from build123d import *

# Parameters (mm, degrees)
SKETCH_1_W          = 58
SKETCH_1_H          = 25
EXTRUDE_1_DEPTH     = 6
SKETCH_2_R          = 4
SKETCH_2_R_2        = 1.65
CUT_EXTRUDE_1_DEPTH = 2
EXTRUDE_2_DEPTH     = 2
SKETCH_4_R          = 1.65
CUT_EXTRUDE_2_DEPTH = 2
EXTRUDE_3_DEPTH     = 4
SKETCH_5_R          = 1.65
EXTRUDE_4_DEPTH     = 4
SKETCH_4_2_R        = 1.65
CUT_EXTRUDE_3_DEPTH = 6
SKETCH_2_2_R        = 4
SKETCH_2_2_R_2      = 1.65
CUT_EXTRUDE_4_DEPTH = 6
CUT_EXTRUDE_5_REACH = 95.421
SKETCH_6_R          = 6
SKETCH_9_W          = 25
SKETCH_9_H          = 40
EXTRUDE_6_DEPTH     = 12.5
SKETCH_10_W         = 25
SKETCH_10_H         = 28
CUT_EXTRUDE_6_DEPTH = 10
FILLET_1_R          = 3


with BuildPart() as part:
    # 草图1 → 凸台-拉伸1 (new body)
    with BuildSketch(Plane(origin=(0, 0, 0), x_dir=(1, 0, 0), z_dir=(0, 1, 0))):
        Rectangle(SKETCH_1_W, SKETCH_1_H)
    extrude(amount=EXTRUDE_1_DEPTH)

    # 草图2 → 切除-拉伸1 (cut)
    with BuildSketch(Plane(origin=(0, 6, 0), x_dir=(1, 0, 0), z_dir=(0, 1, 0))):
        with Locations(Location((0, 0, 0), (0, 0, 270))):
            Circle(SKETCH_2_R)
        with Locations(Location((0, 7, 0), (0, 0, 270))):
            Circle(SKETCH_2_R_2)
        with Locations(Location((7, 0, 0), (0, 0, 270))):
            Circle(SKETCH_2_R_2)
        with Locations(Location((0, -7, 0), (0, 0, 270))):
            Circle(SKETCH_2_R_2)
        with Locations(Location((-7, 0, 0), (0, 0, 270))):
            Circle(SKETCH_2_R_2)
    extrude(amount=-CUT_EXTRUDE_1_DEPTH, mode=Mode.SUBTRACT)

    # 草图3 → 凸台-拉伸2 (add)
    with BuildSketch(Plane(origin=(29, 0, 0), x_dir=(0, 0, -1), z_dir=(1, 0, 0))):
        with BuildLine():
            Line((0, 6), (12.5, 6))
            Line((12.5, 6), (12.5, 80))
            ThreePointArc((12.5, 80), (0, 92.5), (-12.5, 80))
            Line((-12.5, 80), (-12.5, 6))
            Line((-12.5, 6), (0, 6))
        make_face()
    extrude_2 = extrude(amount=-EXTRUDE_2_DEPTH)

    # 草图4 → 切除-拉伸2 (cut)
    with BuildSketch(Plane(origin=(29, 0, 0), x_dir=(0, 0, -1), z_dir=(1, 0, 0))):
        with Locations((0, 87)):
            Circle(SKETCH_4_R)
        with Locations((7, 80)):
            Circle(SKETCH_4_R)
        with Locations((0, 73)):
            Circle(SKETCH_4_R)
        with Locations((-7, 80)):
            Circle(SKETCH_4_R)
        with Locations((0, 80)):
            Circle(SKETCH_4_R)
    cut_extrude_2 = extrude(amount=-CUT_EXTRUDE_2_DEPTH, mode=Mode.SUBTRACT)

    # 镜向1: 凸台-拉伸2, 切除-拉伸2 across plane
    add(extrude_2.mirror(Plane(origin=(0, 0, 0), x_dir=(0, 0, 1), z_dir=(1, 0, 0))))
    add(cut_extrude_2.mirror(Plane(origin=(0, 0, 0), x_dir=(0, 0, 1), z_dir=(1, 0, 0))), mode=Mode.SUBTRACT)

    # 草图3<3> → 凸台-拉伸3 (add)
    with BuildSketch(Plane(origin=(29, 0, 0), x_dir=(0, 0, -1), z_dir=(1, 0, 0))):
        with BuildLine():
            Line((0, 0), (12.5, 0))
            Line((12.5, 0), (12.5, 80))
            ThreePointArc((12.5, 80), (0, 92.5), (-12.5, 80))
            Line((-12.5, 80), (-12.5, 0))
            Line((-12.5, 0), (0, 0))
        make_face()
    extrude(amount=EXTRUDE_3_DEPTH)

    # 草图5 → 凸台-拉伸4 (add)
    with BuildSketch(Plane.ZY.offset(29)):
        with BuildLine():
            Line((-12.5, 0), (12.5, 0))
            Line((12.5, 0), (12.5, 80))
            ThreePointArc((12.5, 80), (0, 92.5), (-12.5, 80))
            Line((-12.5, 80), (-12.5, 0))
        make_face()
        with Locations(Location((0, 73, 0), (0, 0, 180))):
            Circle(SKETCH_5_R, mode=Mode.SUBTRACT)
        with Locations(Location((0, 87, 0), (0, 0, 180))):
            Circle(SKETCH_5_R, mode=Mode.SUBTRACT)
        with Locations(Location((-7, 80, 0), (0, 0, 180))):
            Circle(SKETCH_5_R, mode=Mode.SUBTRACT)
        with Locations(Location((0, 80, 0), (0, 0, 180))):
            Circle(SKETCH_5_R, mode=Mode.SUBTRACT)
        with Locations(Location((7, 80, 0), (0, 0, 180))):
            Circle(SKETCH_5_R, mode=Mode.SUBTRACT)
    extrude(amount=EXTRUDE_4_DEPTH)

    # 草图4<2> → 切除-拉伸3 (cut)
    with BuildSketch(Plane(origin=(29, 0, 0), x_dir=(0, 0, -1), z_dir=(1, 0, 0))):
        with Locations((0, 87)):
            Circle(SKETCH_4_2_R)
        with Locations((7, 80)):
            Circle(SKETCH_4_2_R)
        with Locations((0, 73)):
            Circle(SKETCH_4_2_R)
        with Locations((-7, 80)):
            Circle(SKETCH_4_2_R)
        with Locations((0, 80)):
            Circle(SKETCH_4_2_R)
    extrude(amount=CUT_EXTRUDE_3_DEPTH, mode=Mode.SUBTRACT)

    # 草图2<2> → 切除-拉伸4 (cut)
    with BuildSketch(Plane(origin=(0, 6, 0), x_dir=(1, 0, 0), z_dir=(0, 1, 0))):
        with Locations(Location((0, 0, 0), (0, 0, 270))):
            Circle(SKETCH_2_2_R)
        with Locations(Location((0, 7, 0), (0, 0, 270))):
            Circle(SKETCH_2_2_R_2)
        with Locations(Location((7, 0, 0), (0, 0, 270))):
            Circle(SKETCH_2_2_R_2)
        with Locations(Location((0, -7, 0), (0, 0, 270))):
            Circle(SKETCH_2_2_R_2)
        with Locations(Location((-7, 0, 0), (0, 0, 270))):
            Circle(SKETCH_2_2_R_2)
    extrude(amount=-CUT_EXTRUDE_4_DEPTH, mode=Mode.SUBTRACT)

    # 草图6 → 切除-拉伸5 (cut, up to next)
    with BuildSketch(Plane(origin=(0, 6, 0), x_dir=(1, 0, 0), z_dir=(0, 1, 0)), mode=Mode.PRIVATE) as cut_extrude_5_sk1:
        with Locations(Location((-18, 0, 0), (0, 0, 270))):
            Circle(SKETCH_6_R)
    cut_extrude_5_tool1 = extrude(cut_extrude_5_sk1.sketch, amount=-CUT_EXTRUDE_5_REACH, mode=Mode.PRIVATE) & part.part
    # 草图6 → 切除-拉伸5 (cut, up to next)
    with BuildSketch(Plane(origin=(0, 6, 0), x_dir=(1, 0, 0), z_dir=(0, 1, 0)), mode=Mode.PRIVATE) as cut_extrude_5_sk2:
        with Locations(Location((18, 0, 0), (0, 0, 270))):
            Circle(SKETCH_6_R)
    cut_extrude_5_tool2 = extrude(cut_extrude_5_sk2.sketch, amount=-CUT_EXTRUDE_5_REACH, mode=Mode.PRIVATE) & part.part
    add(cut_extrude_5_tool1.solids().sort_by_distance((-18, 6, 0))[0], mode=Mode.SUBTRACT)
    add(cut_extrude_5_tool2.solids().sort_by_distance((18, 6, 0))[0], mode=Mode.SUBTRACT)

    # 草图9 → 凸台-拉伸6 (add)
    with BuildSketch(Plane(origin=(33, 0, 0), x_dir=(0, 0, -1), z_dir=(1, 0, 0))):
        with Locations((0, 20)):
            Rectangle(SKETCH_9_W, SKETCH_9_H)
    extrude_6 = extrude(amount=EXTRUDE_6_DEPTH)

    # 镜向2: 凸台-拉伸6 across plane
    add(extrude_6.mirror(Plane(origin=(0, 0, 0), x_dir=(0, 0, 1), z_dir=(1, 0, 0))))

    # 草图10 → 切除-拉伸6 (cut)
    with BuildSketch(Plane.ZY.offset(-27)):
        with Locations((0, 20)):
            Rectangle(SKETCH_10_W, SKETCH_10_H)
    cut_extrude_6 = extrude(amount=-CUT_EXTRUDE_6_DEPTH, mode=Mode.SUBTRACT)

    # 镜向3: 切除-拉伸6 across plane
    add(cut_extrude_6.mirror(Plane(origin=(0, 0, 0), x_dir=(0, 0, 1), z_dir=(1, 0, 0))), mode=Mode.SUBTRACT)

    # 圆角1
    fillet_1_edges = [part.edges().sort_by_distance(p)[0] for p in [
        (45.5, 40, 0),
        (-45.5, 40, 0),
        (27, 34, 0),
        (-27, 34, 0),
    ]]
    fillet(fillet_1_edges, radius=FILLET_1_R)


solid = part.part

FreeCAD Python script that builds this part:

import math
import FreeCAD as App
import Part
import Sketcher

V = App.Vector
Q = App.Units.Quantity


def edges_at(feature, points):
    """Names of the edges that pass closest to the given points."""
    edges = feature.Shape.Edges
    near = lambda p: min(range(len(edges)), key=lambda i: edges[i].distToShape(Part.Vertex(*p))[0])
    return sorted({f"Edge{near(p) + 1}" for p in points})


def add_polygon(sketch, points):
    """Adds a closed chain of lines whose ends are joined by coincident constraints."""
    first, n = sketch.GeometryCount, len(points)
    for a, b in zip(points, points[1:] + points[:1]):
        sketch.addGeometry(Part.LineSegment(App.Vector(*a, 0), App.Vector(*b, 0)), False)
    for i in range(n):
        sketch.addConstraint(Sketcher.Constraint("Coincident", first + i, 2, first + (i + 1) % n, 1))

doc = App.newDocument("Part")
body = doc.addObject("PartDesign::Body", "Body")

sketch1 = doc.addObject("Sketcher::SketchObject", "Sketch")
body.addObject(sketch1)
sketch1.AttachmentSupport = (doc.XZ_Plane, [""])
sketch1.MapMode = "FlatFace"
add_polygon(sketch1, [(-29, -12.5), (-29, 12.5), (29, 12.5), (29, -12.5)])
sketch1.addConstraint(Sketcher.Constraint("Vertical", 0))
sketch1.addConstraint(Sketcher.Constraint("Horizontal", 1))
sketch1.addConstraint(Sketcher.Constraint("Vertical", 2))
sketch1.addConstraint(Sketcher.Constraint("Horizontal", 3))
sketch1.addConstraint(Sketcher.Constraint("Symmetric", 0, 2, 2, 2, -1, 1))
sketch1.addConstraint(Sketcher.Constraint("DistanceX", 1, 1, 1, 2, Q("58 mm")))
sketch1.addConstraint(Sketcher.Constraint("DistanceY", 0, 1, 0, 2, Q("25 mm")))
pad1 = doc.addObject("PartDesign::Pad", "Pad")
body.addObject(pad1)
pad1.Profile = sketch1
pad1.Length = 6
pad1.Reversed = True

sketch2 = doc.addObject("Sketcher::SketchObject", "Sketch001")
body.addObject(sketch2)
sketch2.AttachmentSupport = (doc.XZ_Plane, [""])
sketch2.MapMode = "FlatFace"
sketch2.AttachmentOffset = App.Placement(V(0, 0, -6), App.Rotation())
sketch2.addGeometry(Part.Circle(V(0, 0, 0), V(0, 0, 1), 4), False)
sketch2.addGeometry(Part.Circle(V(0, -7, 0), V(0, 0, 1), 1.65), False)
sketch2.addGeometry(Part.Circle(V(7, 0, 0), V(0, 0, 1), 1.65), False)
sketch2.addGeometry(Part.Circle(V(0, 7, 0), V(0, 0, 1), 1.65), False)
sketch2.addGeometry(Part.Circle(V(-7, 0, 0), V(0, 0, 1), 1.65), False)
sketch2.addConstraint(Sketcher.Constraint("Coincident", 0, 3, -1, 1))
sketch2.addConstraint(Sketcher.Constraint("Equal", 1, 2))
sketch2.addConstraint(Sketcher.Constraint("Equal", 2, 3))
sketch2.addConstraint(Sketcher.Constraint("Equal", 3, 4))
sketch2.addConstraint(Sketcher.Constraint("Symmetric", 1, 3, 3, 3, -1, 1))
sketch2.addConstraint(Sketcher.Constraint("Symmetric", 2, 3, 4, 3, -1, 1))
sketch2.addConstraint(Sketcher.Constraint("PointOnObject", 1, 3, -2))
sketch2.addConstraint(Sketcher.Constraint("PointOnObject", 2, 3, -1))
sketch2.addConstraint(Sketcher.Constraint("Diameter", 0, Q("8 mm")))
sketch2.addConstraint(Sketcher.Constraint("Diameter", 1, Q("3.3 mm")))
sketch2.addConstraint(Sketcher.Constraint("DistanceY", 1, 3, -1, 1, Q("7 mm")))
sketch2.addConstraint(Sketcher.Constraint("DistanceX", -1, 1, 2, 3, Q("7 mm")))
pocket1 = doc.addObject("PartDesign::Pocket", "Pocket")
body.addObject(pocket1)
pocket1.Profile = sketch2
pocket1.Length = 2
pocket1.Reversed = True

sketch3 = doc.addObject("Sketcher::SketchObject", "Sketch002")
body.addObject(sketch3)
sketch3.AttachmentSupport = (doc.YZ_Plane, [""])
sketch3.MapMode = "FlatFace"
sketch3.AttachmentOffset = App.Placement(V(0, 0, 29), App.Rotation())
sketch3.addGeometry(Part.LineSegment(V(6, -12.5, 0), V(80, -12.5, 0)), False)
sketch3.addGeometry(Part.ArcOfCircle(Part.Circle(V(80, 0, 0), V(0, 0, 1), 12.5), math.radians(-90), math.radians(90)), False)
sketch3.addGeometry(Part.LineSegment(V(80, 12.5, 0), V(6, 12.5, 0)), False)
sketch3.addGeometry(Part.LineSegment(V(6, 12.5, 0), V(6, -12.5, 0)), False)
sketch3.addConstraint(Sketcher.Constraint("Tangent", 0, 2, 1, 1))
sketch3.addConstraint(Sketcher.Constraint("Tangent", 1, 2, 2, 1))
sketch3.addConstraint(Sketcher.Constraint("Coincident", 2, 2, 3, 1))
sketch3.addConstraint(Sketcher.Constraint("Coincident", 3, 2, 0, 1))
sketch3.addConstraint(Sketcher.Constraint("Horizontal", 0))
sketch3.addConstraint(Sketcher.Constraint("Horizontal", 2))
sketch3.addConstraint(Sketcher.Constraint("Vertical", 3))
sketch3.addConstraint(Sketcher.Constraint("PointOnObject", 1, 3, -1))
sketch3.addConstraint(Sketcher.Constraint("Radius", 1, Q("12.5 mm")))
sketch3.addConstraint(Sketcher.Constraint("DistanceX", 0, 1, 0, 2, Q("74 mm")))
sketch3.addConstraint(Sketcher.Constraint("DistanceX", -1, 1, 1, 3, Q("80 mm")))
pad2 = doc.addObject("PartDesign::Pad", "Pad001")
body.addObject(pad2)
pad2.Profile = sketch3
pad2.Length = 2
pad2.Reversed = True

sketch4 = doc.addObject("Sketcher::SketchObject", "Sketch003")
body.addObject(sketch4)
sketch4.AttachmentSupport = (doc.YZ_Plane, [""])
sketch4.MapMode = "FlatFace"
sketch4.AttachmentOffset = App.Placement(V(0, 0, 29), App.Rotation())
sketch4.addGeometry(Part.Circle(V(87, 0, 0), V(0, 0, 1), 1.65), False)
sketch4.addGeometry(Part.Circle(V(80, -7, 0), V(0, 0, 1), 1.65), False)
sketch4.addGeometry(Part.Circle(V(73, 0, 0), V(0, 0, 1), 1.65), False)
sketch4.addGeometry(Part.Circle(V(80, 7, 0), V(0, 0, 1), 1.65), False)
sketch4.addGeometry(Part.Circle(V(80, 0, 0), V(0, 0, 1), 1.65), False)
sketch4.addConstraint(Sketcher.Constraint("Equal", 0, 1))
sketch4.addConstraint(Sketcher.Constraint("Equal", 1, 2))
sketch4.addConstraint(Sketcher.Constraint("Equal", 2, 3))
sketch4.addConstraint(Sketcher.Constraint("Equal", 3, 4))
sketch4.addConstraint(Sketcher.Constraint("Symmetric", 1, 3, 3, 3, -1))
sketch4.addConstraint(Sketcher.Constraint("PointOnObject", 0, 3, -1))
sketch4.addConstraint(Sketcher.Constraint("PointOnObject", 2, 3, -1))
sketch4.addConstraint(Sketcher.Constraint("PointOnObject", 4, 3, -1))
sketch4.addConstraint(Sketcher.Constraint("Vertical", 3, 3, 4, 3))
sketch4.addConstraint(Sketcher.Constraint("Diameter", 0, Q("3.3 mm")))
sketch4.addConstraint(Sketcher.Constraint("DistanceX", -1, 1, 0, 3, Q("87 mm")))
sketch4.addConstraint(Sketcher.Constraint("DistanceX", -1, 1, 1, 3, Q("80 mm")))
sketch4.addConstraint(Sketcher.Constraint("DistanceY", 1, 3, -1, 1, Q("7 mm")))
sketch4.addConstraint(Sketcher.Constraint("DistanceX", -1, 1, 2, 3, Q("73 mm")))
pocket2 = doc.addObject("PartDesign::Pocket", "Pocket001")
body.addObject(pocket2)
pocket2.Profile = sketch4
pocket2.Length = 2
doc.recompute()

mirrored = doc.addObject("PartDesign::Mirrored", "Mirrored")
body.addObject(mirrored)
mirrored.Originals = [pad2, pocket2]
mirrored.MirrorPlane = (doc.YZ_Plane, [""])
body.Tip = mirrored

sketch5 = doc.addObject("Sketcher::SketchObject", "Sketch004")
body.addObject(sketch5)
sketch5.AttachmentSupport = (doc.YZ_Plane, [""])
sketch5.MapMode = "FlatFace"
sketch5.AttachmentOffset = App.Placement(V(0, 0, 29), App.Rotation())
sketch5.addGeometry(Part.LineSegment(V(0, -12.5, 0), V(80, -12.5, 0)), False)
sketch5.addGeometry(Part.ArcOfCircle(Part.Circle(V(80, 0, 0), V(0, 0, 1), 12.5), math.radians(-90), math.radians(90)), False)
sketch5.addGeometry(Part.LineSegment(V(80, 12.5, 0), V(0, 12.5, 0)), False)
sketch5.addGeometry(Part.LineSegment(V(0, 12.5, 0), V(0, -12.5, 0)), False)
sketch5.addConstraint(Sketcher.Constraint("Tangent", 0, 2, 1, 1))
sketch5.addConstraint(Sketcher.Constraint("Tangent", 1, 2, 2, 1))
sketch5.addConstraint(Sketcher.Constraint("Coincident", 2, 2, 3, 1))
sketch5.addConstraint(Sketcher.Constraint("Coincident", 3, 2, 0, 1))
sketch5.addConstraint(Sketcher.Constraint("Horizontal", 0))
sketch5.addConstraint(Sketcher.Constraint("Horizontal", 2))
sketch5.addConstraint(Sketcher.Constraint("Vertical", 3))
sketch5.addConstraint(Sketcher.Constraint("Symmetric", 2, 2, 3, 2, -1, 1))
sketch5.addConstraint(Sketcher.Constraint("Radius", 1, Q("12.5 mm")))
sketch5.addConstraint(Sketcher.Constraint("DistanceX", 0, 1, 0, 2, Q("80 mm")))
pad3 = doc.addObject("PartDesign::Pad", "Pad002")
body.addObject(pad3)
pad3.Profile = sketch5
pad3.Length = 4

sketch6 = doc.addObject("Sketcher::SketchObject", "Sketch005")
body.addObject(sketch6)
sketch6.AttachmentSupport = (doc.YZ_Plane, [""])
sketch6.MapMode = "FlatFace"
sketch6.AttachmentOffset = App.Placement(V(0, 0, -29), App.Rotation())
sketch6.addGeometry(Part.LineSegment(V(0, -12.5, 0), V(0, 12.5, 0)), False)
sketch6.addGeometry(Part.LineSegment(V(0, 12.5, 0), V(80, 12.5, 0)), False)
sketch6.addGeometry(Part.ArcOfCircle(Part.Circle(V(80, 0, 0), V(0, 0, 1), 12.5), math.radians(-90), math.radians(90)), False)
sketch6.addGeometry(Part.LineSegment(V(80, -12.5, 0), V(0, -12.5, 0)), False)
sketch6.addGeometry(Part.Circle(V(73, 0, 0), V(0, 0, 1), 1.65), False)
sketch6.addGeometry(Part.Circle(V(80, -7, 0), V(0, 0, 1), 1.65), False)
sketch6.addGeometry(Part.Circle(V(80, 0, 0), V(0, 0, 1), 1.65), False)
sketch6.addGeometry(Part.Circle(V(80, 7, 0), V(0, 0, 1), 1.65), False)
sketch6.addGeometry(Part.Circle(V(87, 0, 0), V(0, 0, 1), 1.65), False)
sketch6.addConstraint(Sketcher.Constraint("Coincident", 0, 2, 1, 1))
sketch6.addConstraint(Sketcher.Constraint("Tangent", 1, 2, 2, 2))
sketch6.addConstraint(Sketcher.Constraint("Tangent", 2, 1, 3, 1))
sketch6.addConstraint(Sketcher.Constraint("Coincident", 3, 2, 0, 1))
sketch6.addConstraint(Sketcher.Constraint("Vertical", 0))
sketch6.addConstraint(Sketcher.Constraint("Horizontal", 1))
sketch6.addConstraint(Sketcher.Constraint("Horizontal", 3))
sketch6.addConstraint(Sketcher.Constraint("Coincident", 6, 3, 2, 3))
sketch6.addConstraint(Sketcher.Constraint("Equal", 4, 5))
sketch6.addConstraint(Sketcher.Constraint("Equal", 5, 6))
sketch6.addConstraint(Sketcher.Constraint("Equal", 6, 7))
sketch6.addConstraint(Sketcher.Constraint("Equal", 7, 8))
sketch6.addConstraint(Sketcher.Constraint("Symmetric", 0, 2, 3, 2, -1, 1))
sketch6.addConstraint(Sketcher.Constraint("Symmetric", 5, 3, 7, 3, -1))
sketch6.addConstraint(Sketcher.Constraint("PointOnObject", 4, 3, -1))
sketch6.addConstraint(Sketcher.Constraint("PointOnObject", 8, 3, -1))
sketch6.addConstraint(Sketcher.Constraint("Vertical", 2, 3, 5, 3))
sketch6.addConstraint(Sketcher.Constraint("Diameter", 4, Q("3.3 mm")))
sketch6.addConstraint(Sketcher.Constraint("Radius", 2, Q("12.5 mm")))
sketch6.addConstraint(Sketcher.Constraint("DistanceX", 1, 1, 1, 2, Q("80 mm")))
sketch6.addConstraint(Sketcher.Constraint("DistanceX", -1, 1, 4, 3, Q("73 mm")))
sketch6.addConstraint(Sketcher.Constraint("DistanceY", 5, 3, -1, 1, Q("7 mm")))
sketch6.addConstraint(Sketcher.Constraint("DistanceX", -1, 1, 8, 3, Q("87 mm")))
pad4 = doc.addObject("PartDesign::Pad", "Pad003")
body.addObject(pad4)
pad4.Profile = sketch6
pad4.Length = 4
pad4.Reversed = True

sketch7 = doc.addObject("Sketcher::SketchObject", "Sketch006")
body.addObject(sketch7)
sketch7.AttachmentSupport = (doc.YZ_Plane, [""])
sketch7.MapMode = "FlatFace"
sketch7.AttachmentOffset = App.Placement(V(0, 0, 29), App.Rotation())
sketch7.addGeometry(Part.Circle(V(87, 0, 0), V(0, 0, 1), 1.65), False)
sketch7.addGeometry(Part.Circle(V(80, -7, 0), V(0, 0, 1), 1.65), False)
sketch7.addGeometry(Part.Circle(V(73, 0, 0), V(0, 0, 1), 1.65), False)
sketch7.addGeometry(Part.Circle(V(80, 7, 0), V(0, 0, 1), 1.65), False)
sketch7.addGeometry(Part.Circle(V(80, 0, 0), V(0, 0, 1), 1.65), False)
sketch7.addConstraint(Sketcher.Constraint("Equal", 0, 1))
sketch7.addConstraint(Sketcher.Constraint("Equal", 1, 2))
sketch7.addConstraint(Sketcher.Constraint("Equal", 2, 3))
sketch7.addConstraint(Sketcher.Constraint("Equal", 3, 4))
sketch7.addConstraint(Sketcher.Constraint("Symmetric", 1, 3, 3, 3, -1))
sketch7.addConstraint(Sketcher.Constraint("PointOnObject", 0, 3, -1))
sketch7.addConstraint(Sketcher.Constraint("PointOnObject", 2, 3, -1))
sketch7.addConstraint(Sketcher.Constraint("PointOnObject", 4, 3, -1))
sketch7.addConstraint(Sketcher.Constraint("Vertical", 3, 3, 4, 3))
sketch7.addConstraint(Sketcher.Constraint("Diameter", 0, Q("3.3 mm")))
sketch7.addConstraint(Sketcher.Constraint("DistanceX", -1, 1, 0, 3, Q("87 mm")))
sketch7.addConstraint(Sketcher.Constraint("DistanceX", -1, 1, 1, 3, Q("80 mm")))
sketch7.addConstraint(Sketcher.Constraint("DistanceY", 1, 3, -1, 1, Q("7 mm")))
sketch7.addConstraint(Sketcher.Constraint("DistanceX", -1, 1, 2, 3, Q("73 mm")))
pocket3 = doc.addObject("PartDesign::Pocket", "Pocket002")
body.addObject(pocket3)
pocket3.Profile = sketch7
pocket3.Length = 6
pocket3.Reversed = True

sketch8 = doc.addObject("Sketcher::SketchObject", "Sketch007")
body.addObject(sketch8)
sketch8.AttachmentSupport = (doc.XZ_Plane, [""])
sketch8.MapMode = "FlatFace"
sketch8.AttachmentOffset = App.Placement(V(0, 0, -6), App.Rotation())
sketch8.addGeometry(Part.Circle(V(0, 0, 0), V(0, 0, 1), 4), False)
sketch8.addGeometry(Part.Circle(V(0, -7, 0), V(0, 0, 1), 1.65), False)
sketch8.addGeometry(Part.Circle(V(7, 0, 0), V(0, 0, 1), 1.65), False)
sketch8.addGeometry(Part.Circle(V(0, 7, 0), V(0, 0, 1), 1.65), False)
sketch8.addGeometry(Part.Circle(V(-7, 0, 0), V(0, 0, 1), 1.65), False)
sketch8.addConstraint(Sketcher.Constraint("Coincident", 0, 3, -1, 1))
sketch8.addConstraint(Sketcher.Constraint("Equal", 1, 2))
sketch8.addConstraint(Sketcher.Constraint("Equal", 2, 3))
sketch8.addConstraint(Sketcher.Constraint("Equal", 3, 4))
sketch8.addConstraint(Sketcher.Constraint("Symmetric", 1, 3, 3, 3, -1, 1))
sketch8.addConstraint(Sketcher.Constraint("Symmetric", 2, 3, 4, 3, -1, 1))
sketch8.addConstraint(Sketcher.Constraint("PointOnObject", 1, 3, -2))
sketch8.addConstraint(Sketcher.Constraint("PointOnObject", 2, 3, -1))
sketch8.addConstraint(Sketcher.Constraint("Diameter", 0, Q("8 mm")))
sketch8.addConstraint(Sketcher.Constraint("Diameter", 1, Q("3.3 mm")))
sketch8.addConstraint(Sketcher.Constraint("DistanceY", 1, 3, -1, 1, Q("7 mm")))
sketch8.addConstraint(Sketcher.Constraint("DistanceX", -1, 1, 2, 3, Q("7 mm")))
pocket4 = doc.addObject("PartDesign::Pocket", "Pocket003")
body.addObject(pocket4)
pocket4.Profile = sketch8
pocket4.Length = 6
pocket4.Reversed = True

sketch9 = doc.addObject("Sketcher::SketchObject", "Sketch008")
body.addObject(sketch9)
sketch9.AttachmentSupport = (doc.XZ_Plane, [""])
sketch9.MapMode = "FlatFace"
sketch9.AttachmentOffset = App.Placement(V(0, 0, -6), App.Rotation())
sketch9.addGeometry(Part.Circle(V(-18, 0, 0), V(0, 0, 1), 6), False)
sketch9.addConstraint(Sketcher.Constraint("PointOnObject", 0, 3, -1))
sketch9.addConstraint(Sketcher.Constraint("Diameter", 0, Q("12 mm")))
sketch9.addConstraint(Sketcher.Constraint("DistanceX", 0, 3, -1, 1, Q("18 mm")))
pocket5 = doc.addObject("PartDesign::Pocket", "Pocket004")
body.addObject(pocket5)
pocket5.Profile = sketch9
pocket5.Type = "UpToFirst"
pocket5.Reversed = True

sketch10 = doc.addObject("Sketcher::SketchObject", "Sketch009")
body.addObject(sketch10)
sketch10.AttachmentSupport = (doc.XZ_Plane, [""])
sketch10.MapMode = "FlatFace"
sketch10.AttachmentOffset = App.Placement(V(0, 0, -6), App.Rotation())
sketch10.addGeometry(Part.Circle(V(18, 0, 0), V(0, 0, 1), 6), False)
sketch10.addConstraint(Sketcher.Constraint("PointOnObject", 0, 3, -1))
sketch10.addConstraint(Sketcher.Constraint("Diameter", 0, Q("12 mm")))
sketch10.addConstraint(Sketcher.Constraint("DistanceX", -1, 1, 0, 3, Q("18 mm")))
pocket6 = doc.addObject("PartDesign::Pocket", "Pocket005")
body.addObject(pocket6)
pocket6.Profile = sketch10
pocket6.Type = "UpToFirst"
pocket6.Reversed = True

sketch11 = doc.addObject("Sketcher::SketchObject", "Sketch010")
body.addObject(sketch11)
sketch11.AttachmentSupport = (doc.YZ_Plane, [""])
sketch11.MapMode = "FlatFace"
sketch11.AttachmentOffset = App.Placement(V(0, 0, 33), App.Rotation())
add_polygon(sketch11, [(40, 12.5), (0, 12.5), (0, -12.5), (40, -12.5)])
sketch11.addConstraint(Sketcher.Constraint("Horizontal", 0))
sketch11.addConstraint(Sketcher.Constraint("Vertical", 1))
sketch11.addConstraint(Sketcher.Constraint("Horizontal", 2))
sketch11.addConstraint(Sketcher.Constraint("Vertical", 3))
sketch11.addConstraint(Sketcher.Constraint("Symmetric", 0, 2, 1, 2, -1, 1))
sketch11.addConstraint(Sketcher.Constraint("DistanceX", 0, 2, 0, 1, Q("40 mm")))
sketch11.addConstraint(Sketcher.Constraint("DistanceY", 1, 2, 1, 1, Q("25 mm")))
pad5 = doc.addObject("PartDesign::Pad", "Pad004")
body.addObject(pad5)
pad5.Profile = sketch11
pad5.Length = 12.5
doc.recompute()

mirrored2 = doc.addObject("PartDesign::Mirrored", "Mirrored001")
body.addObject(mirrored2)
mirrored2.Originals = [pad5]
mirrored2.MirrorPlane = (doc.YZ_Plane, [""])
body.Tip = mirrored2

sketch12 = doc.addObject("Sketcher::SketchObject", "Sketch011")
body.addObject(sketch12)
sketch12.AttachmentSupport = (doc.YZ_Plane, [""])
sketch12.MapMode = "FlatFace"
sketch12.AttachmentOffset = App.Placement(V(0, 0, 27), App.Rotation())
add_polygon(sketch12, [(34, -12.5), (6, -12.5), (6, 12.5), (34, 12.5)])
sketch12.addConstraint(Sketcher.Constraint("Horizontal", 0))
sketch12.addConstraint(Sketcher.Constraint("Vertical", 1))
sketch12.addConstraint(Sketcher.Constraint("Horizontal", 2))
sketch12.addConstraint(Sketcher.Constraint("Vertical", 3))
sketch12.addConstraint(Sketcher.Constraint("DistanceX", 0, 2, 0, 1, Q("28 mm")))
sketch12.addConstraint(Sketcher.Constraint("DistanceY", 1, 1, 1, 2, Q("25 mm")))
sketch12.addConstraint(Sketcher.Constraint("DistanceX", -1, 1, 0, 2, Q("6 mm")))
sketch12.addConstraint(Sketcher.Constraint("DistanceY", 0, 2, -1, 1, Q("12.5 mm")))
pocket7 = doc.addObject("PartDesign::Pocket", "Pocket006")
body.addObject(pocket7)
pocket7.Profile = sketch12
pocket7.Length = 10
pocket7.Reversed = True
doc.recompute()

mirrored3 = doc.addObject("PartDesign::Mirrored", "Mirrored002")
body.addObject(mirrored3)
mirrored3.Originals = [pocket7]
mirrored3.MirrorPlane = (doc.YZ_Plane, [""])
body.Tip = mirrored3
doc.recompute()

fillet = doc.addObject("PartDesign::Fillet", "Fillet")
body.addObject(fillet)
fillet.Base = (mirrored3, edges_at(mirrored3, [
    (45.5, 40, 0),
    (-45.5, 40, 0),
    (27, 34, 0),
    (-27, 34, 0),
]))
fillet.Radius = 3

doc.recompute()
